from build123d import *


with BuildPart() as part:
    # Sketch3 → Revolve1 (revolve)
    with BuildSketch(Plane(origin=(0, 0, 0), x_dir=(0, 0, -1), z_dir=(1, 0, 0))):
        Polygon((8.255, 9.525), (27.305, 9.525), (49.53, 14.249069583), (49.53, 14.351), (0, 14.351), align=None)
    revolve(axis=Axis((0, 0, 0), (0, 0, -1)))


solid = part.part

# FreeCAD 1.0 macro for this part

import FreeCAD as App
import Part
import Sketcher

V = App.Vector
Q = App.Units.Quantity


def add_polygon(sketch, points):
    """Adds a closed chain of lines whose ends are joined by coincident constraints."""
    first, n = sketch.GeometryCount, len(points)
    for a, b in zip(points, points[1:] + points[:1]):
        sketch.addGeometry(Part.LineSegment(App.Vector(*a, 0), App.Vector(*b, 0)), False)
    for i in range(n):
        sketch.addConstraint(Sketcher.Constraint("Coincident", first + i, 2, first + (i + 1) % n, 1))

doc = App.newDocument("Part")
params = doc.addObject("Spreadsheet::Sheet", "Params")
for row, (alias, value) in enumerate([
    ("sketch1_height", "0.75 in"),
    ("sketch1_height2", "1.95 in"),
    ("revolution_angle", "360 deg"),
], start=1):
    params.set(f"A{row}", alias)
    params.set(f"B{row}", "=" + value)
    params.setAlias(f"B{row}", alias)

body = doc.addObject("PartDesign::Body", "Body")

# Sketch on YZ plane
sketch1 = body.newObject("Sketcher::SketchObject", "Sketch")
sketch1.AttachmentSupport = (doc.getObject("YZ_Plane"), [""])
sketch1.MapMode = "FlatFace"
add_polygon(sketch1, [(9.525, -8.255), (9.525, -27.305), (14.24907, -49.53), (14.351, -49.53), (14.351, 0)])  # lines 0-4
sketch1.addConstraint(Sketcher.Constraint("Vertical", 0))
sketch1.addConstraint(Sketcher.Constraint("Horizontal", 2))
sketch1.addConstraint(Sketcher.Constraint("Vertical", 3))
sketch1.addConstraint(Sketcher.Constraint("PointOnObject", 3, 2, -1))
sketch1.addConstraint(Sketcher.Constraint("Angle", 1, Q("-78 deg")))
sketch1.addConstraint(Sketcher.Constraint("DistanceY", 0, 2, 0, 1, Q("0.75 in")))
sketch1.addConstraint(Sketcher.Constraint("DistanceY", 3, 1, 3, 2, Q("1.95 in")))
sketch1.addConstraint(Sketcher.Constraint("DistanceX", 0, 2, 2, 2, Q("0.19 in")))
sketch1.addConstraint(Sketcher.Constraint("DistanceX", -1, 1, 0, 2, Q("0.375 in")))
sketch1.addConstraint(Sketcher.Constraint("DistanceY", 0, 2, -1, 1, Q("1.075 in")))
sketch1.setExpression("Constraints[10]", "Params.sketch1_height")
sketch1.setExpression("Constraints[11]", "Params.sketch1_height2")
revolution = body.newObject("PartDesign::Revolution", "Revolution")
revolution.Profile = sketch1
revolution.ReferenceAxis = (sketch1, ["V_Axis"])
revolution.setExpression("Angle", "Params.revolution_angle")

doc.recompute()
